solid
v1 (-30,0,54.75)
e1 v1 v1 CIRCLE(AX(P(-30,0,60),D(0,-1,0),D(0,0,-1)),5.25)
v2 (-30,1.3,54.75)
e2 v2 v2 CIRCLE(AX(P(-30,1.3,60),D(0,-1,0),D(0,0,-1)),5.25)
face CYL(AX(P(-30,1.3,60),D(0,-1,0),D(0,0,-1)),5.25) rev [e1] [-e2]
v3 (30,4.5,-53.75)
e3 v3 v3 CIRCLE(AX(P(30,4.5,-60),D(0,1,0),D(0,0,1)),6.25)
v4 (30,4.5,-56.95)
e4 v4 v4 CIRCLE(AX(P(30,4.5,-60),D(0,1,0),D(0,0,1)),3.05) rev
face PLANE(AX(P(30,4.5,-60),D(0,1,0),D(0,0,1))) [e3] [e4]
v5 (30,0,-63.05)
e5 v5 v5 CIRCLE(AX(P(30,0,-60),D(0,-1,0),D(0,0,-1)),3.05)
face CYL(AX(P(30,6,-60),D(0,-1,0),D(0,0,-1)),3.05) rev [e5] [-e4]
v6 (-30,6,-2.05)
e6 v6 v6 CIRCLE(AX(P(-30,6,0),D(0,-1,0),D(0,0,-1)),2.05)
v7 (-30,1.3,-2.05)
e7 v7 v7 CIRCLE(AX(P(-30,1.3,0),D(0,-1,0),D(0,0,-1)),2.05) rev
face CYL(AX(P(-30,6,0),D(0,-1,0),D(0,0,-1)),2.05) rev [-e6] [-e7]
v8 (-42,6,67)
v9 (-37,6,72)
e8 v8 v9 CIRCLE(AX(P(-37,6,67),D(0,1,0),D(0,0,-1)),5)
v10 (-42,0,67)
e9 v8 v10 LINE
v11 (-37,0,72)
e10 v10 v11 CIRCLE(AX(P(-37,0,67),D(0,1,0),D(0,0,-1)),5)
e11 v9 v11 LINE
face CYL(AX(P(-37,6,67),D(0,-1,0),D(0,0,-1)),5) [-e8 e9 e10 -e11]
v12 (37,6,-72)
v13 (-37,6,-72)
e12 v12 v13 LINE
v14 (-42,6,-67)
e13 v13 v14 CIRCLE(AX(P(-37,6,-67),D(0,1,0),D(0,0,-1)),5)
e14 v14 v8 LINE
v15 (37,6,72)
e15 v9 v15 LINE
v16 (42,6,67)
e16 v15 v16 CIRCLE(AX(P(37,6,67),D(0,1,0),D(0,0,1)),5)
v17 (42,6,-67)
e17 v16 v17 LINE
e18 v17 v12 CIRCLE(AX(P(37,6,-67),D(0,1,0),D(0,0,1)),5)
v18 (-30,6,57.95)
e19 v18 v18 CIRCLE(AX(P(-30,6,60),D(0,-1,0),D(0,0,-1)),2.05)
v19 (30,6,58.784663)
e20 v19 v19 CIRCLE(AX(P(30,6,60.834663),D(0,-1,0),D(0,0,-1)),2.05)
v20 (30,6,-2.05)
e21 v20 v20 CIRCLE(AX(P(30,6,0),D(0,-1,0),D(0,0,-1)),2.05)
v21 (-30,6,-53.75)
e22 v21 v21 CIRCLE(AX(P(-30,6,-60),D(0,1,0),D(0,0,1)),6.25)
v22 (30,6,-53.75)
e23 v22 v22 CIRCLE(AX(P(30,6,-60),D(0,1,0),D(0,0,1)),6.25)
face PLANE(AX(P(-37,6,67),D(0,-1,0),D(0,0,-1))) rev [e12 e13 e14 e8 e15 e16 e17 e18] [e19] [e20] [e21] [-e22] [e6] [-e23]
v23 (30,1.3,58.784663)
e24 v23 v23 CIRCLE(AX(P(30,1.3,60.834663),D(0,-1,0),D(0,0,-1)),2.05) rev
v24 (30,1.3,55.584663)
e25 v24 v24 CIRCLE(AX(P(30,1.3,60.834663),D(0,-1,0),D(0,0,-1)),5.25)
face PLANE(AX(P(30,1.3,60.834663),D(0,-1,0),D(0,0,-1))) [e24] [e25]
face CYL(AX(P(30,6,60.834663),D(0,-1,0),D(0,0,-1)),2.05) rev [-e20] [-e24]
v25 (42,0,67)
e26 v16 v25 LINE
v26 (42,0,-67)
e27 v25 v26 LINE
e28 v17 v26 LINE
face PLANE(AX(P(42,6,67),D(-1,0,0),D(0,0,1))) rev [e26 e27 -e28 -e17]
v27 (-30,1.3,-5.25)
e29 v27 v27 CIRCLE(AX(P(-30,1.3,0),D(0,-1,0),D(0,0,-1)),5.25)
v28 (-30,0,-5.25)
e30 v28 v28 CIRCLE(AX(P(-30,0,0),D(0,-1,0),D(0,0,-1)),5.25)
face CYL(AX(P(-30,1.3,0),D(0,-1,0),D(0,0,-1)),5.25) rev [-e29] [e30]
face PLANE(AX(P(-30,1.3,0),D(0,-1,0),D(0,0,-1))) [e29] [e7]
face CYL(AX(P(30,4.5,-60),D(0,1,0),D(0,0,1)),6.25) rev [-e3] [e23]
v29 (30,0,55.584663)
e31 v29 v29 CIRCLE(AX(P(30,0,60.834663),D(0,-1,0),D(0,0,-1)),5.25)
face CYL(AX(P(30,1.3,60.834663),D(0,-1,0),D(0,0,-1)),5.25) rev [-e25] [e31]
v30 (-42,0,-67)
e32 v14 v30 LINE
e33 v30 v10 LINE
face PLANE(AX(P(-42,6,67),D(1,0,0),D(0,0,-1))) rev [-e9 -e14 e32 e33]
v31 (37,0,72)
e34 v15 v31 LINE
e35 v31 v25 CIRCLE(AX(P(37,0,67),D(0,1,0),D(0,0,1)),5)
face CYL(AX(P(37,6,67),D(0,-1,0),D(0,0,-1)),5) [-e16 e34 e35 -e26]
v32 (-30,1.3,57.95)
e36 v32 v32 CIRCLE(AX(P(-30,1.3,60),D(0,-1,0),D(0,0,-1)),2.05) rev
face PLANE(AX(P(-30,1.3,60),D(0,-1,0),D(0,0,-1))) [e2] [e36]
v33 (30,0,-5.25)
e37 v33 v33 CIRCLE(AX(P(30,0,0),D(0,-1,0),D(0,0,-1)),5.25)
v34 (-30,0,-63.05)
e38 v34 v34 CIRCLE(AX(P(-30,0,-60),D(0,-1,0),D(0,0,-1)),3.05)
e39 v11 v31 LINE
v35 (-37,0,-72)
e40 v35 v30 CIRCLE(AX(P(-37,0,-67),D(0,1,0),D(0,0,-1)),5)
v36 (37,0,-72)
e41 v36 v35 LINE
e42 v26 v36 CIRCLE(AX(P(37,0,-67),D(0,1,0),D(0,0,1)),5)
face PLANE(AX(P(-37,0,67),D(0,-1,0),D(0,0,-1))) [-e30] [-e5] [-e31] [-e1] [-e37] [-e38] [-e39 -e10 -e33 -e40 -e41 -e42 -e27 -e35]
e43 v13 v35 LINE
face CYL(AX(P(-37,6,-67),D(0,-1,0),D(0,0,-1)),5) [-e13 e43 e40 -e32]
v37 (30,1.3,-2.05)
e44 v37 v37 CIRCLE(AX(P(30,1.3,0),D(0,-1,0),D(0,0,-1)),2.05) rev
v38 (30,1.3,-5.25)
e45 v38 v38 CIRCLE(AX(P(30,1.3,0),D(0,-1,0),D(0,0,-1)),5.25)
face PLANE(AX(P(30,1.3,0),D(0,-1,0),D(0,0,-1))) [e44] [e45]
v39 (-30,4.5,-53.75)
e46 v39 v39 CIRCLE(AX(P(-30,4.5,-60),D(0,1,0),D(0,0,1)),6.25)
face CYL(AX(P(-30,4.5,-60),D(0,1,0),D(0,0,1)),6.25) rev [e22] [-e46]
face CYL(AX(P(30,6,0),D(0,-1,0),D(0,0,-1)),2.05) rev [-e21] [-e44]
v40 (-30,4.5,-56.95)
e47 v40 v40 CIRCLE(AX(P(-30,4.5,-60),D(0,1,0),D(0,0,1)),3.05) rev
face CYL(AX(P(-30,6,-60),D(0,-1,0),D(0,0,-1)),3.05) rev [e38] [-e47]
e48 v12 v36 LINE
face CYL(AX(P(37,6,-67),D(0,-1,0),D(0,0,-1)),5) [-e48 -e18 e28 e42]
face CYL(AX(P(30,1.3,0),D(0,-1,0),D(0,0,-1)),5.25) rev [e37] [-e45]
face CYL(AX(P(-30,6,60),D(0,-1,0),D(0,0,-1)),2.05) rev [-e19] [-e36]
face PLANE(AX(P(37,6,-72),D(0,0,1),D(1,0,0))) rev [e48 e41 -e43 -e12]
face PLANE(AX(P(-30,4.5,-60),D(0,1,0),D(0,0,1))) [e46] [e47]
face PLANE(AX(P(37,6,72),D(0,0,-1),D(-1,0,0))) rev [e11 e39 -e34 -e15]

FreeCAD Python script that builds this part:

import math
import FreeCAD as App
import Part
import Sketcher
from FreeCAD import Vector
Q = App.Units.Quantity

doc = App.newDocument("Part")
body = doc.addObject("PartDesign::Body", "Body")

# Sketch on XZ plane
sketch1 = body.newObject("Sketcher::SketchObject", "Sketch")
sketch1.AttachmentSupport = (doc.getObject("XZ_Plane"), [""])
sketch1.MapMode = "FlatFace"
sketch1.addGeometry([
    Part.LineSegment(Vector(-37, 72, 0), Vector(37, 72, 0)),  # 0
    Part.ArcOfCircle(Part.Circle(Vector(37, 67, 0), Vector(0, 0, 1), 5), math.radians(0), math.radians(90)),  # 1
    Part.LineSegment(Vector(42, 67, 0), Vector(42, -67, 0)),  # 2
    Part.ArcOfCircle(Part.Circle(Vector(37, -67, 0), Vector(0, 0, 1), 5), math.radians(-90), math.radians(0)),  # 3
    Part.LineSegment(Vector(37, -72, 0), Vector(-37, -72, 0)),  # 4
    Part.ArcOfCircle(Part.Circle(Vector(-37, -67, 0), Vector(0, 0, 1), 5), math.radians(180), math.radians(270)),  # 5
    Part.LineSegment(Vector(-42, -67, 0), Vector(-42, 67, 0)),  # 6
    Part.ArcOfCircle(Part.Circle(Vector(-37, 67, 0), Vector(0, 0, 1), 5), math.radians(90), math.radians(180)),  # 7
], False)
sketch1.addConstraint([
    Sketcher.Constraint("Tangent", 0, 2, 1, 2),
    Sketcher.Constraint("Tangent", 1, 1, 2, 1),
    Sketcher.Constraint("Tangent", 2, 2, 3, 2),
    Sketcher.Constraint("Tangent", 3, 1, 4, 1),
    Sketcher.Constraint("Tangent", 4, 2, 5, 2),
    Sketcher.Constraint("Tangent", 5, 1, 6, 1),
    Sketcher.Constraint("Tangent", 6, 2, 7, 2),
    Sketcher.Constraint("Tangent", 7, 1, 0, 1),
    Sketcher.Constraint("Horizontal", 0),
    Sketcher.Constraint("Vertical", 2),
    Sketcher.Constraint("Horizontal", 4),
    Sketcher.Constraint("Vertical", 6),
    Sketcher.Constraint("Equal", 1, 3),
    Sketcher.Constraint("Equal", 3, 5),
    Sketcher.Constraint("Equal", 5, 7),
    Sketcher.Constraint("Symmetric", 1, 3, 5, 3, -1, 1),
    Sketcher.Constraint("Radius", 1, Q("5 mm")),
    Sketcher.Constraint("DistanceX", 0, 1, 0, 2, Q("74 mm")),
    Sketcher.Constraint("DistanceY", 2, 2, 2, 1, Q("134 mm")),
])
pad1 = body.newObject("PartDesign::Pad", "Pad")
pad1.Profile = sketch1
pad1.Length = 6
pad1.Reversed = True

# Sketch on XZ plane
sketch2 = body.newObject("Sketcher::SketchObject", "Sketch001")
sketch2.AttachmentSupport = (doc.getObject("XZ_Plane"), [""])
sketch2.MapMode = "FlatFace"
sketch2.addGeometry([
    Part.Circle(Vector(-30, 60, 0), Vector(0, 0, 1), 2),  # 0
    Part.Circle(Vector(30, 60.8, 0), Vector(0, 0, 1), 2),  # 1
    Part.Circle(Vector(-30, 0, 0), Vector(0, 0, 1), 2),  # 2
    Part.Circle(Vector(30, 0, 0), Vector(0, 0, 1), 2),  # 3
    Part.Circle(Vector(-30, -60, 0), Vector(0, 0, 1), 3),  # 4
    Part.Circle(Vector(30, -60, 0), Vector(0, 0, 1), 3),  # 5
], False)
sketch2.addConstraint([
    Sketcher.Constraint("Equal", 0, 1),
    Sketcher.Constraint("Equal", 1, 2),
    Sketcher.Constraint("Equal", 2, 3),
    Sketcher.Constraint("Equal", 4, 5),
    Sketcher.Constraint("Symmetric", 2, 3, 3, 3, -1, 1),
    Sketcher.Constraint("Symmetric", 0, 3, 5, 3, -1, 1),
    Sketcher.Constraint("Symmetric", 4, 3, 5, 3, -2),
    Sketcher.Constraint("PointOnObject", 2, 3, -1),
    Sketcher.Constraint("Vertical", 0, 3, 2, 3),
    Sketcher.Constraint("Vertical", 1, 3, 3, 3),
    Sketcher.Constraint("Diameter", 0, Q("4.1 mm")),
    Sketcher.Constraint("Diameter", 4, Q("6.1 mm")),
    Sketcher.Constraint("DistanceX", 0, 3, -1, 1, Q("30 mm")),
    Sketcher.Constraint("DistanceY", -1, 1, 0, 3, Q("60 mm")),
    Sketcher.Constraint("DistanceY", -1, 1, 1, 3, Q("60.834663 mm")),
])
pocket1 = body.newObject("PartDesign::Pocket", "Pocket")
pocket1.Profile = sketch2
pocket1.Length = 6

# Sketch on XZ plane
sketch3 = body.newObject("Sketcher::SketchObject", "Sketch002")
sketch3.AttachmentSupport = (doc.getObject("XZ_Plane"), [""])
sketch3.MapMode = "FlatFace"
sketch3.addGeometry([
    Part.Circle(Vector(-30, 60, 0), Vector(0, 0, 1), 5),
    Part.Circle(Vector(30, 61, 0), Vector(0, 0, 1), 5),
    Part.Circle(Vector(-30, 0, 0), Vector(0, 0, 1), 5),
    Part.Circle(Vector(30, 0, 0), Vector(0, 0, 1), 5),
], False)
sketch3.addConstraint([
    Sketcher.Constraint("Equal", 0, 1),
    Sketcher.Constraint("Equal", 1, 2),
    Sketcher.Constraint("Equal", 2, 3),
    Sketcher.Constraint("Symmetric", 2, 3, 3, 3, -1, 1),
    Sketcher.Constraint("PointOnObject", 2, 3, -1),
    Sketcher.Constraint("Vertical", 0, 3, 2, 3),
    Sketcher.Constraint("Vertical", 1, 3, 3, 3),
    Sketcher.Constraint("Diameter", 0, Q("10.5 mm")),
    Sketcher.Constraint("DistanceX", 0, 3, -1, 1, Q("30 mm")),
    Sketcher.Constraint("DistanceY", -1, 1, 0, 3, Q("60 mm")),
    Sketcher.Constraint("DistanceY", -1, 1, 1, 3, Q("60.834663 mm")),
])
pocket2 = body.newObject("PartDesign::Pocket", "Pocket001")
pocket2.Profile = sketch3
pocket2.Length = 1.3

# Sketch on XZ plane
sketch4 = body.newObject("Sketcher::SketchObject", "Sketch003")
sketch4.AttachmentSupport = (doc.getObject("XZ_Plane"), [""])
sketch4.MapMode = "FlatFace"
sketch4.AttachmentOffset = App.Placement(Vector(0, 0, -6), App.Rotation())
sketch4.addGeometry([
    Part.Circle(Vector(-30, -60, 0), Vector(0, 0, 1), 6),
    Part.Circle(Vector(30, -60, 0), Vector(0, 0, 1), 6),
], False)
sketch4.addConstraint([
    Sketcher.Constraint("Equal", 0, 1),
    Sketcher.Constraint("Symmetric", 0, 3, 1, 3, -2),
    Sketcher.Constraint("Diameter", 0, Q("12.5 mm")),
    Sketcher.Constraint("DistanceX", 0, 3, -1, 1, Q("30 mm")),
    Sketcher.Constraint("DistanceY", 0, 3, -1, 1, Q("60 mm")),
])
pocket3 = body.newObject("PartDesign::Pocket", "Pocket002")
pocket3.Profile = sketch4
pocket3.Length = 1.5
pocket3.Reversed = True

doc.recompute()
